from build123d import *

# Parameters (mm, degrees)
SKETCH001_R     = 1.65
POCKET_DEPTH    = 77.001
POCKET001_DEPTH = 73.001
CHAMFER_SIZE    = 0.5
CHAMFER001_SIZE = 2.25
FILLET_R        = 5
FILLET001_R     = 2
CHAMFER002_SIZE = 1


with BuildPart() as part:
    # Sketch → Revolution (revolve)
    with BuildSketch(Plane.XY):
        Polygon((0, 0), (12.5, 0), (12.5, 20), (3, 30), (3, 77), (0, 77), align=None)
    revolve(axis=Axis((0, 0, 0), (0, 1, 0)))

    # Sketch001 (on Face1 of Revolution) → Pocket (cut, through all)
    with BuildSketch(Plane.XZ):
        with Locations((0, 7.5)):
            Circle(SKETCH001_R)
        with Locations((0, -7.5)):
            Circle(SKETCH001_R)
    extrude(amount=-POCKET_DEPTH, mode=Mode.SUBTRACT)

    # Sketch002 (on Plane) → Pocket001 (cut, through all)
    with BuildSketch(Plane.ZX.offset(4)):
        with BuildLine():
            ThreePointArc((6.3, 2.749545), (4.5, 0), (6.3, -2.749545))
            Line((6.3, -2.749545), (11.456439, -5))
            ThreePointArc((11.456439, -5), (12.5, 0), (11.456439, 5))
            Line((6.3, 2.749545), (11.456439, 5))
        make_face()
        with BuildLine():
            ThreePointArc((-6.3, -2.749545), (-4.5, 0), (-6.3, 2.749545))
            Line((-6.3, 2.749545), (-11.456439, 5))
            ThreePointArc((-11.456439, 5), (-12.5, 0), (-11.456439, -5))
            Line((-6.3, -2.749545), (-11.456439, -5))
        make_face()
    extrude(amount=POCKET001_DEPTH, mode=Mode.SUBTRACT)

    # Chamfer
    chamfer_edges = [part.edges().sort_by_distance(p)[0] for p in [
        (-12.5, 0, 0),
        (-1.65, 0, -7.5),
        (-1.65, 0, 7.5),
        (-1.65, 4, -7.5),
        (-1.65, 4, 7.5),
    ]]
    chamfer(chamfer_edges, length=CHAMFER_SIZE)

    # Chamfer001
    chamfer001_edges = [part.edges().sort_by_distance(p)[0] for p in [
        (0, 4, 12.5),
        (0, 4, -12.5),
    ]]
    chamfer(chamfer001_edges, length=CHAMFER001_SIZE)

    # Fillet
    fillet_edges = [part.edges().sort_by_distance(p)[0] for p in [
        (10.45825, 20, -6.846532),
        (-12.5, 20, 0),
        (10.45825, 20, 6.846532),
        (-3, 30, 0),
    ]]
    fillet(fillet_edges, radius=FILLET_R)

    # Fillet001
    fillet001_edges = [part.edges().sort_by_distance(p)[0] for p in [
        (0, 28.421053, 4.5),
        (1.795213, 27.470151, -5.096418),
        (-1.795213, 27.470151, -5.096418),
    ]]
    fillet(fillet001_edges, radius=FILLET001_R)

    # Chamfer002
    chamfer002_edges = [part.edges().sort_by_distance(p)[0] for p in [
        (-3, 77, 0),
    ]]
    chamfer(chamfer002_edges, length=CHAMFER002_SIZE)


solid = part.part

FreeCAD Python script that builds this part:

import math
import FreeCAD as App
import Part
import Sketcher

V = App.Vector
Q = App.Units.Quantity


def edges_at(feature, points):
    """Names of the edges that pass closest to the given points."""
    edges = feature.Shape.Edges
    near = lambda p: min(range(len(edges)), key=lambda i: edges[i].distToShape(Part.Vertex(*p))[0])
    return sorted({f"Edge{near(p) + 1}" for p in points})


def add_polygon(sketch, points):
    """Adds a closed chain of lines whose ends are joined by coincident constraints."""
    first, n = sketch.GeometryCount, len(points)
    for a, b in zip(points, points[1:] + points[:1]):
        sketch.addGeometry(Part.LineSegment(App.Vector(*a, 0), App.Vector(*b, 0)), False)
    for i in range(n):
        sketch.addConstraint(Sketcher.Constraint("Coincident", first + i, 2, first + (i + 1) % n, 1))

doc = App.newDocument("Part")
params = doc.addObject("Spreadsheet::Sheet", "Params")
for row, (alias, value) in enumerate([
    ("sketch1_width", "3 mm"),
    ("sketch1_height", "20 mm"),
    ("sketch1_height2", "47 mm"),
    ("sketch1_height3", "77 mm"),
    ("sketch1_width2", "12.5 mm"),
    ("revolution_angle", "360 deg"),
    ("sketch2_diameter", "3.3 mm"),
    ("sketch3_radius", "2.999999 mm"),
    ("chamfer_size", "0.5 mm"),
    ("chamfer2_size", "2.25 mm"),
    ("fillet_radius", "5 mm"),
    ("fillet2_radius", "2 mm"),
    ("chamfer3_size", "1 mm"),
], start=1):
    params.set(f"A{row}", alias)
    params.set(f"B{row}", "=" + value)
    params.setAlias(f"B{row}", alias)

body = doc.addObject("PartDesign::Body", "Body")

# Sketch on XY plane
sketch1 = doc.addObject("Sketcher::SketchObject", "Sketch")
body.addObject(sketch1)
sketch1.AttachmentSupport = (doc.XY_Plane, [""])
sketch1.MapMode = "FlatFace"
add_polygon(sketch1, [(0, 0), (12.5, 0), (12.5, 20), (3, 30), (3, 77), (0, 77)])  # lines 0-5
sketch1.addConstraint(Sketcher.Constraint("Horizontal", 0))
sketch1.addConstraint(Sketcher.Constraint("Vertical", 1))
sketch1.addConstraint(Sketcher.Constraint("Vertical", 3))
sketch1.addConstraint(Sketcher.Constraint("Horizontal", 4))
sketch1.addConstraint(Sketcher.Constraint("Vertical", 5))
sketch1.addConstraint(Sketcher.Constraint("Coincident", 5, 2, -1, 1))
sketch1.addConstraint(Sketcher.Constraint("DistanceX", 4, 2, 4, 1, Q("3 mm")))
sketch1.addConstraint(Sketcher.Constraint("DistanceY", 1, 1, 1, 2, Q("20 mm")))
sketch1.addConstraint(Sketcher.Constraint("DistanceY", 3, 1, 3, 2, Q("47 mm")))
sketch1.addConstraint(Sketcher.Constraint("DistanceY", 5, 2, 5, 1, Q("77 mm")))
sketch1.addConstraint(Sketcher.Constraint("DistanceX", 0, 1, 0, 2, Q("12.5 mm")))
sketch1.setExpression("Constraints[12]", "Params.sketch1_width")
sketch1.setExpression("Constraints[13]", "Params.sketch1_height")
sketch1.setExpression("Constraints[14]", "Params.sketch1_height2")
sketch1.setExpression("Constraints[15]", "Params.sketch1_height3")
sketch1.setExpression("Constraints[16]", "Params.sketch1_width2")
revolution = doc.addObject("PartDesign::Revolution", "Revolution")
body.addObject(revolution)
revolution.Profile = sketch1
revolution.ReferenceAxis = (sketch1, ["V_Axis"])
revolution.setExpression("Angle", "Params.revolution_angle")

# Sketch on XZ plane
sketch2 = doc.addObject("Sketcher::SketchObject", "Sketch001")
body.addObject(sketch2)
sketch2.AttachmentSupport = (doc.XZ_Plane, [""])
sketch2.MapMode = "FlatFace"
sketch2.addGeometry(Part.Circle(V(0, 7.5, 0), V(0, 0, 1), 1.6), False)
sketch2.addGeometry(Part.Circle(V(0, -7.5, 0), V(0, 0, 1), 1.6), False)
sketch2.addConstraint(Sketcher.Constraint("Equal", 0, 1))
sketch2.addConstraint(Sketcher.Constraint("Symmetric", 0, 3, 1, 3, -1, 1))
sketch2.addConstraint(Sketcher.Constraint("PointOnObject", 0, 3, -2))
sketch2.addConstraint(Sketcher.Constraint("Diameter", 0, Q("3.3 mm")))
sketch2.addConstraint(Sketcher.Constraint("DistanceY", 1, 3, 0, 3, Q("15 mm")))
sketch2.setExpression("Constraints[3]", "Params.sketch2_diameter")
pocket1 = doc.addObject("PartDesign::Pocket", "Pocket")
body.addObject(pocket1)
pocket1.Profile = sketch2
pocket1.Type = "ThroughAll"

# Sketch on XZ plane
sketch3 = doc.addObject("Sketcher::SketchObject", "Sketch002")
body.addObject(sketch3)
sketch3.AttachmentSupport = (doc.XZ_Plane, [""])
sketch3.MapMode = "FlatFace"
sketch3.AttachmentOffset = App.Placement(V(0, 0, -4), App.Rotation())
sketch3.addGeometry(Part.ArcOfCircle(Part.Circle(V(0, 7.5, 0), V(0, 0, 1), 3), math.radians(-156), math.radians(-24)), False)
sketch3.addGeometry(Part.LineSegment(V(-2.7, 6.3, 0), V(-5, 11.5, 0)), False)
sketch3.addGeometry(Part.ArcOfCircle(Part.Circle(V(0, 0, 0), V(0, 0, 1), 12.5), math.radians(66), math.radians(114)), False)
sketch3.addGeometry(Part.LineSegment(V(5, 11.5, 0), V(2.7, 6.3, 0)), False)
sketch3.addGeometry(Part.ArcOfCircle(Part.Circle(V(0, -7.5, 0), V(0, 0, 1), 3), math.radians(24), math.radians(156)), False)
sketch3.addGeometry(Part.LineSegment(V(2.7, -6.3, 0), V(5, -11.5, 0)), False)
sketch3.addGeometry(Part.ArcOfCircle(Part.Circle(V(0, 0, 0), V(0, 0, 1), 12.5), math.radians(-114), math.radians(-66)), False)
sketch3.addGeometry(Part.LineSegment(V(-5, -11.5, 0), V(-2.7, -6.3, 0)), False)
sketch3.addConstraint(Sketcher.Constraint("Tangent", 0, 1, 1, 1))
sketch3.addConstraint(Sketcher.Constraint("Coincident", 1, 2, 2, 2))
sketch3.addConstraint(Sketcher.Constraint("Coincident", 2, 1, 3, 1))
sketch3.addConstraint(Sketcher.Constraint("Tangent", 3, 2, 0, 2))
sketch3.addConstraint(Sketcher.Constraint("Tangent", 4, 1, 5, 1))
sketch3.addConstraint(Sketcher.Constraint("Coincident", 5, 2, 6, 2))
sketch3.addConstraint(Sketcher.Constraint("Coincident", 6, 1, 7, 1))
sketch3.addConstraint(Sketcher.Constraint("Tangent", 7, 2, 4, 2))
sketch3.addConstraint(Sketcher.Constraint("Coincident", 2, 3, -1, 1))
sketch3.addConstraint(Sketcher.Constraint("Coincident", 6, 3, -1, 1))
sketch3.addConstraint(Sketcher.Constraint("Equal", 0, 4))
sketch3.addConstraint(Sketcher.Constraint("Equal", 2, 6))
sketch3.addConstraint(Sketcher.Constraint("Symmetric", 0, 3, 4, 3, -1, 1))
sketch3.addConstraint(Sketcher.Constraint("Symmetric", 0, 1, 3, 2, -2))
sketch3.addConstraint(Sketcher.Constraint("Parallel", 1, 5))
sketch3.addConstraint(Sketcher.Constraint("Parallel", 3, 7))
sketch3.addConstraint(Sketcher.Constraint("Radius", 0, Q("2.999999 mm")))
sketch3.addConstraint(Sketcher.Constraint("DistanceX", 1, 2, -1, 1, Q("5 mm")))
sketch3.addConstraint(Sketcher.Constraint("DistanceY", 4, 3, 0, 3, Q("14.999999 mm")))
sketch3.addConstraint(Sketcher.Constraint("DistanceY", -1, 1, 0, 1, Q("6.3 mm")))
sketch3.setExpression("Constraints[16]", "Params.sketch3_radius")
pocket2 = doc.addObject("PartDesign::Pocket", "Pocket001")
body.addObject(pocket2)
pocket2.Profile = sketch3
pocket2.Type = "ThroughAll"
doc.recompute()

chamfer = doc.addObject("PartDesign::Chamfer", "Chamfer")
body.addObject(chamfer)
chamfer.Base = (pocket2, edges_at(pocket2, [
    (-12.5, 0, 0),
    (-1.65, 0, -7.5),
    (-1.65, 0, 7.5),
    (-1.65, 4, -7.5),
    (-1.65, 4, 7.5),
]))
chamfer.setExpression("Size", "Params.chamfer_size")
doc.recompute()

chamfer2 = doc.addObject("PartDesign::Chamfer", "Chamfer001")
body.addObject(chamfer2)
chamfer2.Base = (chamfer, edges_at(chamfer, [(0, 4, 12.5), (0, 4, -12.5)]))
chamfer2.setExpression("Size", "Params.chamfer2_size")
doc.recompute()

fillet = doc.addObject("PartDesign::Fillet", "Fillet")
body.addObject(fillet)
fillet.Base = (chamfer2, edges_at(chamfer2, [
    (10.458, 20, -6.847),
    (-12.5, 20, 0),
    (10.458, 20, 6.847),
    (-3, 30, 0),
]))
fillet.setExpression("Radius", "Params.fillet_radius")
doc.recompute()

fillet2 = doc.addObject("PartDesign::Fillet", "Fillet001")
body.addObject(fillet2)
fillet2.Base = (fillet, edges_at(fillet, [(0, 28.421, 4.5), (0, 28.421, -4.5), (0, 28.421, -4.5)]))
fillet2.setExpression("Radius", "Params.fillet2_radius")
doc.recompute()

chamfer3 = doc.addObject("PartDesign::Chamfer", "Chamfer002")
body.addObject(chamfer3)
chamfer3.Base = (fillet2, edges_at(fillet2, [(-3, 77, 0)]))
chamfer3.setExpression("Size", "Params.chamfer3_size")

doc.recompute()
